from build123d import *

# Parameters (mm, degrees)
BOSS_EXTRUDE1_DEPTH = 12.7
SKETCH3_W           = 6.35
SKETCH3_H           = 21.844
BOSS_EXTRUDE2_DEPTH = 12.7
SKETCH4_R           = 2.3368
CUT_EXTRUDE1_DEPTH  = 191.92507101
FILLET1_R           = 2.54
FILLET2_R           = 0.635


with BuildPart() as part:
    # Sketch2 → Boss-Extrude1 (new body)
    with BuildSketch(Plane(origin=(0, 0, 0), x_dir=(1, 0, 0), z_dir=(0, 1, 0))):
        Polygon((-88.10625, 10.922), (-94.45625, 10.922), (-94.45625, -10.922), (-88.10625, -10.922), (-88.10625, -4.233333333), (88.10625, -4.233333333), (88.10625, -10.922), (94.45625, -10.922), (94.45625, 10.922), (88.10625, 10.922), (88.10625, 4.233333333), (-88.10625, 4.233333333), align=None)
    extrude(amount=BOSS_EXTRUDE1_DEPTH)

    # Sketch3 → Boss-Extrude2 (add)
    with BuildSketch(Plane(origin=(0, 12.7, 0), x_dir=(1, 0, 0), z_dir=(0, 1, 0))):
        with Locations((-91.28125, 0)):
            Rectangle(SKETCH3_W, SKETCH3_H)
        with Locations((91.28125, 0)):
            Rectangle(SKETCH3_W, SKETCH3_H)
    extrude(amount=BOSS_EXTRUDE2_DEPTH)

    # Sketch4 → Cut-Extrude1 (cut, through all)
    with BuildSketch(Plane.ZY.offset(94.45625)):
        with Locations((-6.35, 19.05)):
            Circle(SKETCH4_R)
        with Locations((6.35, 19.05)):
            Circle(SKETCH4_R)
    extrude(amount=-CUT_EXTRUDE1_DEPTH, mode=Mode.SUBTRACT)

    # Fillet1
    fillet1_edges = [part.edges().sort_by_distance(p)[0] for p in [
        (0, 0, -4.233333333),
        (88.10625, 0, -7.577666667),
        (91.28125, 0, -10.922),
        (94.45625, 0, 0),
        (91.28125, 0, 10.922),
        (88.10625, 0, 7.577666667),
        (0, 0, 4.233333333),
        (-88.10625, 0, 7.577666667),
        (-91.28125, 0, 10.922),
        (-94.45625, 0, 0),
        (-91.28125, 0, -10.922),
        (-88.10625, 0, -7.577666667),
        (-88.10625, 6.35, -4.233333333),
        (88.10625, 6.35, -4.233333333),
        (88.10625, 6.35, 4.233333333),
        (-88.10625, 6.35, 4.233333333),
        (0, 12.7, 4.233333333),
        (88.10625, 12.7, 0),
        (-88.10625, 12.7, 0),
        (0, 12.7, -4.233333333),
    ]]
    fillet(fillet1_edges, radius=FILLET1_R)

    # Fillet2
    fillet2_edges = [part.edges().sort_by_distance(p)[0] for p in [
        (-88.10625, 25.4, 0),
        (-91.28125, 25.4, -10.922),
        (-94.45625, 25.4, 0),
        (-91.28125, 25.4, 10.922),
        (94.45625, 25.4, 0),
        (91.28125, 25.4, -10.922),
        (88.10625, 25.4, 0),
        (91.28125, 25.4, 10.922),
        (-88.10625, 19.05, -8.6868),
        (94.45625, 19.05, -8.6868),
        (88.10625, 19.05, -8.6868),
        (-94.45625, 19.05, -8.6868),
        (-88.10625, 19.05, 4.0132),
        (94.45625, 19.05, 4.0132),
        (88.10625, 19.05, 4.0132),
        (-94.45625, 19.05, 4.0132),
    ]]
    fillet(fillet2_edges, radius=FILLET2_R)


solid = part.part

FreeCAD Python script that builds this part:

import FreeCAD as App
import Part
import Sketcher
from FreeCAD import Vector
Q = App.Units.Quantity


def edges_at(feature, points):
    """Names of the edges that pass closest to the given points."""
    edges = feature.Shape.Edges
    near = lambda p: min(range(len(edges)), key=lambda i: edges[i].distToShape(Part.Vertex(*p))[0])
    return sorted({f"Edge{near(p) + 1}" for p in points})


def add_polygon(sketch, points):
    """Adds a closed chain of lines whose ends are joined by coincident constraints."""
    first, n = sketch.GeometryCount, len(points)
    for a, b in zip(points, points[1:] + points[:1]):
        sketch.addGeometry(Part.LineSegment(App.Vector(*a, 0), App.Vector(*b, 0)), False)
    for i in range(n):
        sketch.addConstraint(Sketcher.Constraint("Coincident", first + i, 2, first + (i + 1) % n, 1))

doc = App.newDocument("Part")
params = doc.addObject("Spreadsheet::Sheet", "Params")
for row, (alias, value) in enumerate([
    ("sketch1_width", "0.25 in"),
    ("sketch1_height", "0.86 in"),
    ("sketch1_width2", "6.9375 in"),
    ("pad1_length", "0.5 in"),
    ("sketch2_width", "0.25 in"),
    ("sketch2_height", "0.86 in"),
    ("pad2_length", "0.5 in"),
    ("sketch3_diameter", "0.184 in"),
    ("fillet_radius", "0.1 in"),
    ("fillet2_radius", "0.025 in"),
], start=1):
    params.set(f"A{row}", alias)
    params.set(f"B{row}", "=" + value)
    params.setAlias(f"B{row}", alias)

body = doc.addObject("PartDesign::Body", "Body")

sketch1 = body.newObject("Sketcher::SketchObject", "Sketch")
sketch1.AttachmentSupport = (doc.getObject("XZ_Plane"), [""])
sketch1.MapMode = "FlatFace"
add_polygon(sketch1, [(-88.10625, -10.922), (-94.45625, -10.922), (-94.45625, 10.922), (-88.10625, 10.922), (-88.10625, 4.233333), (88.10625, 4.233333), (88.10625, 10.922), (94.45625, 10.922), (94.45625, -10.922), (88.10625, -10.922), (88.10625, -4.233333), (-88.10625, -4.233333)])
sketch1.addConstraint(Sketcher.Constraint("Horizontal", 0))
sketch1.addConstraint(Sketcher.Constraint("Vertical", 1))
sketch1.addConstraint(Sketcher.Constraint("Horizontal", 2))
sketch1.addConstraint(Sketcher.Constraint("Vertical", 3))
sketch1.addConstraint(Sketcher.Constraint("Horizontal", 4))
sketch1.addConstraint(Sketcher.Constraint("Vertical", 5))
sketch1.addConstraint(Sketcher.Constraint("Horizontal", 6))
sketch1.addConstraint(Sketcher.Constraint("Vertical", 7))
sketch1.addConstraint(Sketcher.Constraint("Horizontal", 8))
sketch1.addConstraint(Sketcher.Constraint("Vertical", 9))
sketch1.addConstraint(Sketcher.Constraint("Horizontal", 10))
sketch1.addConstraint(Sketcher.Constraint("Vertical", 11))
sketch1.addConstraint(Sketcher.Constraint("Symmetric", 0, 2, 6, 2, -1, 1))
sketch1.addConstraint(Sketcher.Constraint("Symmetric", 2, 2, 8, 2, -1, 1))
sketch1.addConstraint(Sketcher.Constraint("Symmetric", 4, 2, 10, 2, -1, 1))
sketch1.addConstraint(Sketcher.Constraint("Symmetric", 2, 2, 5, 2, -2))
sketch1.addConstraint(Sketcher.Constraint("DistanceX", 0, 2, 0, 1, Q("0.25 in")))
sketch1.addConstraint(Sketcher.Constraint("DistanceY", 1, 1, 1, 2, Q("0.86 in")))
sketch1.addConstraint(Sketcher.Constraint("DistanceX", 4, 1, 4, 2, Q("6.9375 in")))
sketch1.addConstraint(Sketcher.Constraint("DistanceY", 3, 2, 3, 1, Q("6.688667 mm")))
sketch1.setExpression("Constraints[28]", "Params.sketch1_width")
sketch1.setExpression("Constraints[29]", "Params.sketch1_height")
sketch1.setExpression("Constraints[30]", "Params.sketch1_width2")
pad1 = body.newObject("PartDesign::Pad", "Pad")
pad1.Profile = sketch1
pad1.setExpression("Length", "Params.pad1_length")
pad1.Reversed = True

sketch2 = body.newObject("Sketcher::SketchObject", "Sketch001")
sketch2.AttachmentSupport = (doc.getObject("XZ_Plane"), [""])
sketch2.MapMode = "FlatFace"
sketch2.AttachmentOffset = App.Placement(Vector(0, 0, -0.5 * 25.4), App.Rotation())
add_polygon(sketch2, [(-94.45625, -10.922), (-94.45625, 10.922), (-88.10625, 10.922), (-88.10625, -10.922)])
add_polygon(sketch2, [(88.10625, -10.922), (88.10625, 10.922), (94.45625, 10.922), (94.45625, -10.922)])
sketch2.addConstraint(Sketcher.Constraint("Vertical", 0))
sketch2.addConstraint(Sketcher.Constraint("Horizontal", 1))
sketch2.addConstraint(Sketcher.Constraint("Vertical", 2))
sketch2.addConstraint(Sketcher.Constraint("Horizontal", 3))
sketch2.addConstraint(Sketcher.Constraint("Vertical", 4))
sketch2.addConstraint(Sketcher.Constraint("Horizontal", 5))
sketch2.addConstraint(Sketcher.Constraint("Vertical", 6))
sketch2.addConstraint(Sketcher.Constraint("Horizontal", 7))
sketch2.addConstraint(Sketcher.Constraint("Symmetric", 2, 2, 4, 2, -1, 1))
sketch2.addConstraint(Sketcher.Constraint("Symmetric", 0, 2, 6, 2, -1, 1))
sketch2.addConstraint(Sketcher.Constraint("Horizontal", 1, 2, 4, 2))
sketch2.addConstraint(Sketcher.Constraint("DistanceX", 1, 1, 1, 2, Q("0.25 in")))
sketch2.addConstraint(Sketcher.Constraint("DistanceY", 0, 1, 0, 2, Q("0.86 in")))
sketch2.addConstraint(Sketcher.Constraint("DistanceX", 0, 2, -1, 1, Q("3.71875 in")))
sketch2.setExpression("Constraints[19]", "Params.sketch2_width")
sketch2.setExpression("Constraints[20]", "Params.sketch2_height")
pad2 = body.newObject("PartDesign::Pad", "Pad001")
pad2.Profile = sketch2
pad2.setExpression("Length", "Params.pad2_length")
pad2.Reversed = True

sketch3 = body.newObject("Sketcher::SketchObject", "Sketch002")
sketch3.AttachmentSupport = (doc.getObject("YZ_Plane"), [""])
sketch3.MapMode = "FlatFace"
sketch3.AttachmentOffset = App.Placement(Vector(0, 0, -3.71875 * 25.4), App.Rotation())
sketch3.addGeometry(Part.Circle(Vector(19.05, -6.35, 0), Vector(0, 0, 1), 2.3368), False)
sketch3.addGeometry(Part.Circle(Vector(19.05, 6.35, 0), Vector(0, 0, 1), 2.3368), False)
sketch3.addConstraint(Sketcher.Constraint("Equal", 0, 1))
sketch3.addConstraint(Sketcher.Constraint("Symmetric", 0, 3, 1, 3, -1))
sketch3.addConstraint(Sketcher.Constraint("Diameter", 0, Q("0.184 in")))
sketch3.addConstraint(Sketcher.Constraint("DistanceY", 0, 3, 1, 3, Q("0.5 in")))
sketch3.addConstraint(Sketcher.Constraint("DistanceX", -1, 1, 0, 3, Q("0.75 in")))
sketch3.setExpression("Constraints[2]", "Params.sketch3_diameter")
pocket1 = body.newObject("PartDesign::Pocket", "Pocket")
pocket1.Profile = sketch3
pocket1.Type = "ThroughAll"
pocket1.Reversed = True
doc.recompute()

fillet = body.newObject("PartDesign::Fillet", "Fillet")
fillet.Base = (pocket1, edges_at(pocket1, [
    (0, 0, -4.233),
    (88.106, 0, -7.578),
    (91.281, 0, -10.922),
    (94.456, 0, 0),
    (91.281, 0, 10.922),
    (88.106, 0, 7.578),
    (0, 0, 4.233),
    (-88.106, 0, 7.578),
    (-91.281, 0, 10.922),
    (-94.456, 0, 0),
    (-91.281, 0, -10.922),
    (-88.106, 0, -7.578),
    (-88.106, 6.35, -4.233),
    (88.106, 6.35, -4.233),
    (88.106, 6.35, 4.233),
    (-88.106, 6.35, 4.233),
    (0, 12.7, 4.233),
    (88.106, 12.7, 0),
    (-88.106, 12.7, 0),
    (0, 12.7, -4.233),
]))
fillet.setExpression("Radius", "Params.fillet_radius")
doc.recompute()

fillet2 = body.newObject("PartDesign::Fillet", "Fillet001")
fillet2.Base = (fillet, edges_at(fillet, [
    (-88.106, 25.4, 0),
    (-91.281, 25.4, -10.922),
    (-94.456, 25.4, 0),
    (-91.281, 25.4, 10.922),
    (94.456, 25.4, 0),
    (91.281, 25.4, -10.922),
    (88.106, 25.4, 0),
    (91.281, 25.4, 10.922),
    (-88.106, 19.05, -8.687),
    (94.456, 19.05, -8.687),
    (88.106, 19.05, -8.687),
    (-94.456, 19.05, -8.687),
    (-88.106, 19.05, 4.013),
    (94.456, 19.05, 4.013),
    (88.106, 19.05, 4.013),
    (-94.456, 19.05, 4.013),
]))
fillet2.setExpression("Radius", "Params.fillet2_radius")

doc.recompute()
